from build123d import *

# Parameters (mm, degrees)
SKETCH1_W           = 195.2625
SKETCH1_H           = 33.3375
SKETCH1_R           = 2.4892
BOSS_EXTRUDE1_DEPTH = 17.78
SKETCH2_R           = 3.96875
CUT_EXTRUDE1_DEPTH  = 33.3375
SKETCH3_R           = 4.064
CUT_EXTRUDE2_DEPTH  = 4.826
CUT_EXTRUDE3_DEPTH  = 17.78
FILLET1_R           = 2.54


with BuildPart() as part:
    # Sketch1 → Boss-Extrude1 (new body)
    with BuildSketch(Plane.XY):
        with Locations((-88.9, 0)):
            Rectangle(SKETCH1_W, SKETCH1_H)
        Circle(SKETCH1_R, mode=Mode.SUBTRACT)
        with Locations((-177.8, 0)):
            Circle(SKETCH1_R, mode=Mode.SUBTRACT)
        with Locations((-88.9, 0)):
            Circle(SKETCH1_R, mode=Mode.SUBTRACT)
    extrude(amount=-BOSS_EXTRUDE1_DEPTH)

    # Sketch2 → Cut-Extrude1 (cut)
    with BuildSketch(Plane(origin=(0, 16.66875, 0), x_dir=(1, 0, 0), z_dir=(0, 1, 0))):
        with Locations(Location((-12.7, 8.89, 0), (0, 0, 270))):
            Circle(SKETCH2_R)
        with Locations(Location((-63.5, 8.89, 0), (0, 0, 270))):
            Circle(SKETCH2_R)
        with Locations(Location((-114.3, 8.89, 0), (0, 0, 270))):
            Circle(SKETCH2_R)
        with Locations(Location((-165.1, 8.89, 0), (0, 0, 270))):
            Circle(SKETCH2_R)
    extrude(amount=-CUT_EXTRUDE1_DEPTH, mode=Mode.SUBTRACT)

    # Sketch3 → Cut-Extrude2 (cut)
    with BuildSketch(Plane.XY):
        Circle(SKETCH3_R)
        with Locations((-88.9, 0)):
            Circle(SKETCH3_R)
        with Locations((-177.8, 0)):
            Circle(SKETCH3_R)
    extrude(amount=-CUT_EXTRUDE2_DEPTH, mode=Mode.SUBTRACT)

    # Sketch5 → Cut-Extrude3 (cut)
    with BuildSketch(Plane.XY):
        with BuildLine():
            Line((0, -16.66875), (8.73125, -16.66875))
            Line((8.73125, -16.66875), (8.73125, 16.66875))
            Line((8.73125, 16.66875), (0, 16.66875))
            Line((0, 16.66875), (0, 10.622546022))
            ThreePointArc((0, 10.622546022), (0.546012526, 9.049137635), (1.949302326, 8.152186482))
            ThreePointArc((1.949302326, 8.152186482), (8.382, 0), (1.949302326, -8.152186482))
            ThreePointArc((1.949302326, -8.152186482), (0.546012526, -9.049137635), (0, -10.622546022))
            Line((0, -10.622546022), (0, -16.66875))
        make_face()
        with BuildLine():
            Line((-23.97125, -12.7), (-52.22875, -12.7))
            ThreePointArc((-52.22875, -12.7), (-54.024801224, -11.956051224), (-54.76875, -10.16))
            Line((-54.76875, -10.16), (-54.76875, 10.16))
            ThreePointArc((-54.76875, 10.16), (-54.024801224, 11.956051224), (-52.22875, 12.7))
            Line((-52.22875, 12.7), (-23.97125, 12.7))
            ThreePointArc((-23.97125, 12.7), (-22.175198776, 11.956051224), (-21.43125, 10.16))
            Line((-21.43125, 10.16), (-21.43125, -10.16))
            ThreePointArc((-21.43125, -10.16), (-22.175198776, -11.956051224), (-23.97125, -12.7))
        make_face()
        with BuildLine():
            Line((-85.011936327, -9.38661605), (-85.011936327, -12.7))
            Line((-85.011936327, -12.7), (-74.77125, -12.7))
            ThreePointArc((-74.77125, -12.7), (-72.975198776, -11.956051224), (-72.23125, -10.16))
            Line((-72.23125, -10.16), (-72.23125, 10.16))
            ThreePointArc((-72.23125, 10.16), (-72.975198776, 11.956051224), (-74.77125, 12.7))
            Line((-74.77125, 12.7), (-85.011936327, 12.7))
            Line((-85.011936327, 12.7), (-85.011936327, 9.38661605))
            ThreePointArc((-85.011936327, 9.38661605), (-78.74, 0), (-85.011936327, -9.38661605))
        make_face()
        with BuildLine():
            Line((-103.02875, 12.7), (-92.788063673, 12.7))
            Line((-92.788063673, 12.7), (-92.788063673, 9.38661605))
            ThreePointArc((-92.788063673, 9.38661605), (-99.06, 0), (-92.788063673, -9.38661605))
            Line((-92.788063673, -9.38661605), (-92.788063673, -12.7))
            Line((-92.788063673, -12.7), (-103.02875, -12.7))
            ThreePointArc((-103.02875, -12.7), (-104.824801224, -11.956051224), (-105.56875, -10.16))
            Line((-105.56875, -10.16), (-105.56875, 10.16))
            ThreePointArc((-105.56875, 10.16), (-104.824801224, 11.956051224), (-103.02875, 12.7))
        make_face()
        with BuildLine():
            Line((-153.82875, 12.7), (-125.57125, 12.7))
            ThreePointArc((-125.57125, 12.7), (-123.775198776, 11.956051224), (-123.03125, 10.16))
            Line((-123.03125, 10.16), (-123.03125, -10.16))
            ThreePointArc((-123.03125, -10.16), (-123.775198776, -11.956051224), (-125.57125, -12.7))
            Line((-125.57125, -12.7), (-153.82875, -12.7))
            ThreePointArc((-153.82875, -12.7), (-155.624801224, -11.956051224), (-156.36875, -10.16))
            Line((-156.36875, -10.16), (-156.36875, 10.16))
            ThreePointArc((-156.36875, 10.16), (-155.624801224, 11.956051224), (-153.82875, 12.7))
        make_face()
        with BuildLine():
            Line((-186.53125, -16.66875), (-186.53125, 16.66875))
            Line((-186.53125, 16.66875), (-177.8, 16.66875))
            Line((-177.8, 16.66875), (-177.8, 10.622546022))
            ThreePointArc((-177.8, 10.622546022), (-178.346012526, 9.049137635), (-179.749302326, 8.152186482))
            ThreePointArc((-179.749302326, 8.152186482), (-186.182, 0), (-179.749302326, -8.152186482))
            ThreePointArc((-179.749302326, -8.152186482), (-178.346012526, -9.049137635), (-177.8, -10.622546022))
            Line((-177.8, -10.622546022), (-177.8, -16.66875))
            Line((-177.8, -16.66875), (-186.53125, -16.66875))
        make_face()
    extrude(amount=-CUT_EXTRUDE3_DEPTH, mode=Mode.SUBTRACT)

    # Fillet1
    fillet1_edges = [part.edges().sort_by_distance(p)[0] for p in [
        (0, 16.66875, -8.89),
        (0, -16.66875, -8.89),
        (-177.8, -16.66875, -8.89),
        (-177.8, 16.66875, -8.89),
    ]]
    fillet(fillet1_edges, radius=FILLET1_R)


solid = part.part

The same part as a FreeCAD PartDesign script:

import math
import FreeCAD as App
import Part
import Sketcher
from FreeCAD import Vector
Q = App.Units.Quantity


def edges_at(feature, points):
    """Names of the edges that pass closest to the given points."""
    edges = feature.Shape.Edges
    near = lambda p: min(range(len(edges)), key=lambda i: edges[i].distToShape(Part.Vertex(*p))[0])
    return sorted({f"Edge{near(p) + 1}" for p in points})

doc = App.newDocument("Part")
body = doc.addObject("PartDesign::Body", "Body")

sketch1 = body.newObject("Sketcher::SketchObject", "Sketch")
sketch1.AttachmentSupport = (doc.getObject("XY_Plane"), [""])
sketch1.MapMode = "FlatFace"
sketch1.addGeometry(Part.LineSegment(Vector(-186.5, 16.7, 0), Vector(-186.5, -16.7, 0)), False)
sketch1.addGeometry(Part.LineSegment(Vector(-186.5, -16.7, 0), Vector(8.7, -16.7, 0)), False)
sketch1.addGeometry(Part.LineSegment(Vector(8.7, -16.7, 0), Vector(8.7, 16.7, 0)), False)
sketch1.addGeometry(Part.LineSegment(Vector(8.7, 16.7, 0), Vector(-186.5, 16.7, 0)), False)
sketch1.addGeometry(Part.Circle(Vector(-177.8, 0, 0), Vector(0, 0, 1), 2.5), False)
sketch1.addGeometry(Part.Circle(Vector(-88.9, 0, 0), Vector(0, 0, 1), 2.5), False)
sketch1.addGeometry(Part.Circle(Vector(0, 0, 0), Vector(0, 0, 1), 2.5), False)
sketch1.addConstraint(Sketcher.Constraint("Coincident", 0, 2, 1, 1))
sketch1.addConstraint(Sketcher.Constraint("Coincident", 1, 2, 2, 1))
sketch1.addConstraint(Sketcher.Constraint("Coincident", 2, 2, 3, 1))
sketch1.addConstraint(Sketcher.Constraint("Coincident", 3, 2, 0, 1))
sketch1.addConstraint(Sketcher.Constraint("Vertical", 0))
sketch1.addConstraint(Sketcher.Constraint("Horizontal", 1))
sketch1.addConstraint(Sketcher.Constraint("Vertical", 2))
sketch1.addConstraint(Sketcher.Constraint("Horizontal", 3))
sketch1.addConstraint(Sketcher.Constraint("Coincident", 6, 3, -1, 1))
sketch1.addConstraint(Sketcher.Constraint("Equal", 4, 5))
sketch1.addConstraint(Sketcher.Constraint("Equal", 5, 6))
sketch1.addConstraint(Sketcher.Constraint("PointOnObject", 4, 3, -1))
sketch1.addConstraint(Sketcher.Constraint("PointOnObject", 5, 3, -1))
sketch1.addConstraint(Sketcher.Constraint("Diameter", 4, Q("0.196 in")))
sketch1.addConstraint(Sketcher.Constraint("DistanceX", 4, 3, -1, 1, Q("7 in")))
sketch1.addConstraint(Sketcher.Constraint("DistanceX", 5, 3, -1, 1, Q("3.5 in")))
sketch1.addConstraint(Sketcher.Constraint("DistanceX", 1, 1, 1, 2, Q("7.6875 in")))
sketch1.addConstraint(Sketcher.Constraint("DistanceY", 0, 2, 0, 1, Q("1.3125 in")))
sketch1.addConstraint(Sketcher.Constraint("DistanceX", 0, 2, -1, 1, Q("7.34375 in")))
sketch1.addConstraint(Sketcher.Constraint("DistanceY", 0, 2, -1, 1, Q("0.65625 in")))
pad1 = body.newObject("PartDesign::Pad", "Pad")
pad1.Profile = sketch1
pad1.Length = Q("0.7 in")
pad1.Reversed = True

sketch2 = body.newObject("Sketcher::SketchObject", "Sketch001")
sketch2.AttachmentSupport = (doc.getObject("XZ_Plane"), [""])
sketch2.MapMode = "FlatFace"
sketch2.AttachmentOffset = App.Placement(Vector(0, 0, -0.65625 * 25.4), App.Rotation())
sketch2.addGeometry(Part.Circle(Vector(-12.7, -8.9, 0), Vector(0, 0, 1), 4), False)
sketch2.addGeometry(Part.Circle(Vector(-63.5, -8.9, 0), Vector(0, 0, 1), 4), False)
sketch2.addGeometry(Part.Circle(Vector(-114.3, -8.9, 0), Vector(0, 0, 1), 4), False)
sketch2.addGeometry(Part.Circle(Vector(-165.1, -8.9, 0), Vector(0, 0, 1), 4), False)
sketch2.addConstraint(Sketcher.Constraint("Equal", 0, 1))
sketch2.addConstraint(Sketcher.Constraint("Equal", 1, 2))
sketch2.addConstraint(Sketcher.Constraint("Equal", 2, 3))
sketch2.addConstraint(Sketcher.Constraint("Horizontal", 0, 3, 1, 3))
sketch2.addConstraint(Sketcher.Constraint("Horizontal", 1, 3, 2, 3))
sketch2.addConstraint(Sketcher.Constraint("Horizontal", 2, 3, 3, 3))
sketch2.addConstraint(Sketcher.Constraint("Diameter", 0, Q("0.3125 in")))
sketch2.addConstraint(Sketcher.Constraint("DistanceX", 1, 3, 0, 3, Q("2 in")))
sketch2.addConstraint(Sketcher.Constraint("DistanceX", 2, 3, 1, 3, Q("2 in")))
sketch2.addConstraint(Sketcher.Constraint("DistanceX", 3, 3, 2, 3, Q("2 in")))
sketch2.addConstraint(Sketcher.Constraint("DistanceX", 0, 3, -1, 1, Q("0.5 in")))
sketch2.addConstraint(Sketcher.Constraint("DistanceY", 0, 3, -1, 1, Q("0.35 in")))
pocket1 = body.newObject("PartDesign::Pocket", "Pocket")
pocket1.Profile = sketch2
pocket1.Length = Q("1.3125 in")
pocket1.Reversed = True

sketch3 = body.newObject("Sketcher::SketchObject", "Sketch002")
sketch3.AttachmentSupport = (doc.getObject("XY_Plane"), [""])
sketch3.MapMode = "FlatFace"
sketch3.addGeometry(Part.Circle(Vector(0, 0, 0), Vector(0, 0, 1), 4.1), False)
sketch3.addGeometry(Part.Circle(Vector(-88.9, 0, 0), Vector(0, 0, 1), 4.1), False)
sketch3.addGeometry(Part.Circle(Vector(-177.8, 0, 0), Vector(0, 0, 1), 4.1), False)
sketch3.addConstraint(Sketcher.Constraint("Coincident", 0, 3, -1, 1))
sketch3.addConstraint(Sketcher.Constraint("Equal", 0, 1))
sketch3.addConstraint(Sketcher.Constraint("Equal", 1, 2))
sketch3.addConstraint(Sketcher.Constraint("PointOnObject", 1, 3, -1))
sketch3.addConstraint(Sketcher.Constraint("PointOnObject", 2, 3, -1))
sketch3.addConstraint(Sketcher.Constraint("Diameter", 0, Q("0.32 in")))
sketch3.addConstraint(Sketcher.Constraint("DistanceX", 2, 3, -1, 1, Q("7 in")))
sketch3.addConstraint(Sketcher.Constraint("DistanceX", 1, 3, -1, 1, Q("3.5 in")))
pocket2 = body.newObject("PartDesign::Pocket", "Pocket001")
pocket2.Profile = sketch3
pocket2.Length = Q("0.19 in")

sketch4 = body.newObject("Sketcher::SketchObject", "Sketch003")
sketch4.AttachmentSupport = (doc.getObject("XY_Plane"), [""])
sketch4.MapMode = "FlatFace"
sketch4.addGeometry(Part.LineSegment(Vector(0, -16.7, 0), Vector(8.7, -16.7, 0)), False)
sketch4.addGeometry(Part.LineSegment(Vector(8.7, -16.7, 0), Vector(8.7, 16.7, 0)), False)
sketch4.addGeometry(Part.LineSegment(Vector(8.7, 16.7, 0), Vector(0, 16.7, 0)), False)
sketch4.addGeometry(Part.LineSegment(Vector(0, 16.7, 0), Vector(0, 10.6, 0)), False)
sketch4.addGeometry(Part.ArcOfCircle(Part.Circle(Vector(2.5, 10.6, 0), Vector(0, 0, 1), 2.5), math.radians(-180), math.radians(-103)), False)
sketch4.addGeometry(Part.ArcOfCircle(Part.Circle(Vector(0, 0, 0), Vector(0, 0, 1), 8.4), math.radians(-77), math.radians(77)), False)
sketch4.addGeometry(Part.ArcOfCircle(Part.Circle(Vector(2.5, -10.6, 0), Vector(0, 0, 1), 2.5), math.radians(103), math.radians(180)), False)
sketch4.addGeometry(Part.LineSegment(Vector(0, -10.6, 0), Vector(0, -16.7, 0)), False)
sketch4.addGeometry(Part.LineSegment(Vector(-52.2, -12.7, 0), Vector(-24, -12.7, 0)), False)
sketch4.addGeometry(Part.ArcOfCircle(Part.Circle(Vector(-24, -10.2, 0), Vector(0, 0, 1), 2.5), math.radians(-90), math.radians(0)), False)
sketch4.addGeometry(Part.LineSegment(Vector(-21.4, -10.2, 0), Vector(-21.4, 10.2, 0)), False)
sketch4.addGeometry(Part.ArcOfCircle(Part.Circle(Vector(-24, 10.2, 0), Vector(0, 0, 1), 2.5), math.radians(0), math.radians(90)), False)
sketch4.addGeometry(Part.LineSegment(Vector(-24, 12.7, 0), Vector(-52.2, 12.7, 0)), False)
sketch4.addGeometry(Part.ArcOfCircle(Part.Circle(Vector(-52.2, 10.2, 0), Vector(0, 0, 1), 2.5), math.radians(90), math.radians(180)), False)
sketch4.addGeometry(Part.LineSegment(Vector(-54.8, 10.2, 0), Vector(-54.8, -10.2, 0)), False)
sketch4.addGeometry(Part.ArcOfCircle(Part.Circle(Vector(-52.2, -10.2, 0), Vector(0, 0, 1), 2.5), math.radians(-180), math.radians(-90)), False)
sketch4.addGeometry(Part.LineSegment(Vector(-85, -9.4, 0), Vector(-85, -12.7, 0)), False)
sketch4.addGeometry(Part.LineSegment(Vector(-85, -12.7, 0), Vector(-74.8, -12.7, 0)), False)
sketch4.addGeometry(Part.ArcOfCircle(Part.Circle(Vector(-74.8, -10.2, 0), Vector(0, 0, 1), 2.5), math.radians(-90), math.radians(0)), False)
sketch4.addGeometry(Part.LineSegment(Vector(-72.2, -10.2, 0), Vector(-72.2, 10.2, 0)), False)
sketch4.addGeometry(Part.ArcOfCircle(Part.Circle(Vector(-74.8, 10.2, 0), Vector(0, 0, 1), 2.5), math.radians(0), math.radians(90)), False)
sketch4.addGeometry(Part.LineSegment(Vector(-74.8, 12.7, 0), Vector(-85, 12.7, 0)), False)
sketch4.addGeometry(Part.LineSegment(Vector(-85, 12.7, 0), Vector(-85, 9.4, 0)), False)
sketch4.addGeometry(Part.ArcOfCircle(Part.Circle(Vector(-88.9, 0, 0), Vector(0, 0, 1), 10.2), math.radians(-67), math.radians(67)), False)
sketch4.addGeometry(Part.LineSegment(Vector(-92.8, 12.7, 0), Vector(-103, 12.7, 0)), False)
sketch4.addGeometry(Part.ArcOfCircle(Part.Circle(Vector(-103, 10.2, 0), Vector(0, 0, 1), 2.5), math.radians(90), math.radians(180)), False)
sketch4.addGeometry(Part.LineSegment(Vector(-105.6, 10.2, 0), Vector(-105.6, -10.2, 0)), False)
sketch4.addGeometry(Part.ArcOfCircle(Part.Circle(Vector(-103, -10.2, 0), Vector(0, 0, 1), 2.5), math.radians(-180), math.radians(-90)), False)
sketch4.addGeometry(Part.LineSegment(Vector(-103, -12.7, 0), Vector(-92.8, -12.7, 0)), False)
sketch4.addGeometry(Part.LineSegment(Vector(-92.8, -12.7, 0), Vector(-92.8, -9.4, 0)), False)
sketch4.addGeometry(Part.ArcOfCircle(Part.Circle(Vector(-88.9, 0, 0), Vector(0, 0, 1), 10.2), math.radians(113), math.radians(247)), False)
sketch4.addGeometry(Part.LineSegment(Vector(-92.8, 9.4, 0), Vector(-92.8, 12.7, 0)), False)
sketch4.addGeometry(Part.LineSegment(Vector(-125.6, 12.7, 0), Vector(-153.8, 12.7, 0)), False)
sketch4.addGeometry(Part.ArcOfCircle(Part.Circle(Vector(-153.8, 10.2, 0), Vector(0, 0, 1), 2.5), math.radians(90), math.radians(180)), False)
sketch4.addGeometry(Part.LineSegment(Vector(-156.4, 10.2, 0), Vector(-156.4, -10.2, 0)), False)
sketch4.addGeometry(Part.ArcOfCircle(Part.Circle(Vector(-153.8, -10.2, 0), Vector(0, 0, 1), 2.5), math.radians(-180), math.radians(-90)), False)
sketch4.addGeometry(Part.LineSegment(Vector(-153.8, -12.7, 0), Vector(-125.6, -12.7, 0)), False)
sketch4.addGeometry(Part.ArcOfCircle(Part.Circle(Vector(-125.6, -10.2, 0), Vector(0, 0, 1), 2.5), math.radians(-90), math.radians(0)), False)
sketch4.addGeometry(Part.LineSegment(Vector(-123, -10.2, 0), Vector(-123, 10.2, 0)), False)
sketch4.addGeometry(Part.ArcOfCircle(Part.Circle(Vector(-125.6, 10.2, 0), Vector(0, 0, 1), 2.5), math.radians(0), math.radians(90)), False)
sketch4.addGeometry(Part.LineSegment(Vector(-186.5, 16.7, 0), Vector(-186.5, -16.7, 0)), False)
sketch4.addGeometry(Part.LineSegment(Vector(-186.5, -16.7, 0), Vector(-177.8, -16.7, 0)), False)
sketch4.addGeometry(Part.LineSegment(Vector(-177.8, -16.7, 0), Vector(-177.8, -10.6, 0)), False)
sketch4.addGeometry(Part.ArcOfCircle(Part.Circle(Vector(-180.3, -10.6, 0), Vector(0, 0, 1), 2.5), math.radians(0), math.radians(77)), False)
sketch4.addGeometry(Part.ArcOfCircle(Part.Circle(Vector(-177.8, 0, 0), Vector(0, 0, 1), 8.4), math.radians(103), math.radians(257)), False)
sketch4.addGeometry(Part.ArcOfCircle(Part.Circle(Vector(-180.3, 10.6, 0), Vector(0, 0, 1), 2.5), math.radians(-77), math.radians(0)), False)
sketch4.addGeometry(Part.LineSegment(Vector(-177.8, 10.6, 0), Vector(-177.8, 16.7, 0)), False)
sketch4.addGeometry(Part.LineSegment(Vector(-177.8, 16.7, 0), Vector(-186.5, 16.7, 0)), False)
sketch4.addConstraint(Sketcher.Constraint("Coincident", 0, 2, 1, 1))
sketch4.addConstraint(Sketcher.Constraint("Coincident", 1, 2, 2, 1))
sketch4.addConstraint(Sketcher.Constraint("Coincident", 2, 2, 3, 1))
sketch4.addConstraint(Sketcher.Constraint("Tangent", 3, 2, 4, 1))
sketch4.addConstraint(Sketcher.Constraint("Tangent", 4, 2, 5, 2))
sketch4.addConstraint(Sketcher.Constraint("Tangent", 5, 1, 6, 1))
sketch4.addConstraint(Sketcher.Constraint("Tangent", 6, 2, 7, 1))
sketch4.addConstraint(Sketcher.Constraint("Coincident", 7, 2, 0, 1))
sketch4.addConstraint(Sketcher.Constraint("Tangent", 8, 2, 9, 1))
sketch4.addConstraint(Sketcher.Constraint("Tangent", 9, 2, 10, 1))
sketch4.addConstraint(Sketcher.Constraint("Tangent", 10, 2, 11, 1))
sketch4.addConstraint(Sketcher.Constraint("Tangent", 11, 2, 12, 1))
sketch4.addConstraint(Sketcher.Constraint("Tangent", 12, 2, 13, 1))
sketch4.addConstraint(Sketcher.Constraint("Tangent", 13, 2, 14, 1))
sketch4.addConstraint(Sketcher.Constraint("Tangent", 14, 2, 15, 1))
sketch4.addConstraint(Sketcher.Constraint("Tangent", 15, 2, 8, 1))
sketch4.addConstraint(Sketcher.Constraint("Coincident", 16, 2, 17, 1))
sketch4.addConstraint(Sketcher.Constraint("Tangent", 17, 2, 18, 1))
sketch4.addConstraint(Sketcher.Constraint("Tangent", 18, 2, 19, 1))
sketch4.addConstraint(Sketcher.Constraint("Tangent", 19, 2, 20, 1))
sketch4.addConstraint(Sketcher.Constraint("Tangent", 20, 2, 21, 1))
sketch4.addConstraint(Sketcher.Constraint("Coincident", 21, 2, 22, 1))
sketch4.addConstraint(Sketcher.Constraint("Coincident", 22, 2, 23, 2))
sketch4.addConstraint(Sketcher.Constraint("Coincident", 23, 1, 16, 1))
sketch4.addConstraint(Sketcher.Constraint("Tangent", 24, 2, 25, 1))
sketch4.addConstraint(Sketcher.Constraint("Tangent", 25, 2, 26, 1))
sketch4.addConstraint(Sketcher.Constraint("Tangent", 26, 2, 27, 1))
sketch4.addConstraint(Sketcher.Constraint("Tangent", 27, 2, 28, 1))
sketch4.addConstraint(Sketcher.Constraint("Coincident", 28, 2, 29, 1))
sketch4.addConstraint(Sketcher.Constraint("Coincident", 29, 2, 30, 2))
sketch4.addConstraint(Sketcher.Constraint("Coincident", 30, 1, 31, 1))
sketch4.addConstraint(Sketcher.Constraint("Coincident", 31, 2, 24, 1))
sketch4.addConstraint(Sketcher.Constraint("Tangent", 32, 2, 33, 1))
sketch4.addConstraint(Sketcher.Constraint("Tangent", 33, 2, 34, 1))
sketch4.addConstraint(Sketcher.Constraint("Tangent", 34, 2, 35, 1))
sketch4.addConstraint(Sketcher.Constraint("Tangent", 35, 2, 36, 1))
sketch4.addConstraint(Sketcher.Constraint("Tangent", 36, 2, 37, 1))
sketch4.addConstraint(Sketcher.Constraint("Tangent", 37, 2, 38, 1))
sketch4.addConstraint(Sketcher.Constraint("Tangent", 38, 2, 39, 1))
sketch4.addConstraint(Sketcher.Constraint("Tangent", 39, 2, 32, 1))
sketch4.addConstraint(Sketcher.Constraint("Coincident", 40, 2, 41, 1))
sketch4.addConstraint(Sketcher.Constraint("Coincident", 41, 2, 42, 1))
sketch4.addConstraint(Sketcher.Constraint("Tangent", 42, 2, 43, 1))
sketch4.addConstraint(Sketcher.Constraint("Tangent", 43, 2, 44, 2))
sketch4.addConstraint(Sketcher.Constraint("Tangent", 44, 1, 45, 1))
sketch4.addConstraint(Sketcher.Constraint("Tangent", 45, 2, 46, 1))
sketch4.addConstraint(Sketcher.Constraint("Coincident", 46, 2, 47, 1))
sketch4.addConstraint(Sketcher.Constraint("Coincident", 47, 2, 40, 1))
sketch4.addConstraint(Sketcher.Constraint("Horizontal", 0))
sketch4.addConstraint(Sketcher.Constraint("Vertical", 1))
sketch4.addConstraint(Sketcher.Constraint("Horizontal", 2))
sketch4.addConstraint(Sketcher.Constraint("Vertical", 3))
sketch4.addConstraint(Sketcher.Constraint("Vertical", 7))
sketch4.addConstraint(Sketcher.Constraint("Horizontal", 8))
sketch4.addConstraint(Sketcher.Constraint("Vertical", 10))
sketch4.addConstraint(Sketcher.Constraint("Horizontal", 12))
sketch4.addConstraint(Sketcher.Constraint("Vertical", 14))
sketch4.addConstraint(Sketcher.Constraint("Vertical", 16))
sketch4.addConstraint(Sketcher.Constraint("Horizontal", 17))
sketch4.addConstraint(Sketcher.Constraint("Vertical", 19))
sketch4.addConstraint(Sketcher.Constraint("Horizontal", 21))
sketch4.addConstraint(Sketcher.Constraint("Vertical", 22))
sketch4.addConstraint(Sketcher.Constraint("Horizontal", 24))
sketch4.addConstraint(Sketcher.Constraint("Vertical", 26))
sketch4.addConstraint(Sketcher.Constraint("Horizontal", 28))
sketch4.addConstraint(Sketcher.Constraint("Vertical", 29))
sketch4.addConstraint(Sketcher.Constraint("Vertical", 31))
sketch4.addConstraint(Sketcher.Constraint("Horizontal", 32))
sketch4.addConstraint(Sketcher.Constraint("Vertical", 34))
sketch4.addConstraint(Sketcher.Constraint("Horizontal", 36))
sketch4.addConstraint(Sketcher.Constraint("Vertical", 38))
sketch4.addConstraint(Sketcher.Constraint("Vertical", 40))
sketch4.addConstraint(Sketcher.Constraint("Horizontal", 41))
sketch4.addConstraint(Sketcher.Constraint("Vertical", 42))
sketch4.addConstraint(Sketcher.Constraint("Vertical", 46))
sketch4.addConstraint(Sketcher.Constraint("Horizontal", 47))
sketch4.addConstraint(Sketcher.Constraint("Coincident", 5, 3, -1, 1))
sketch4.addConstraint(Sketcher.Constraint("Coincident", 30, 3, 23, 3))
sketch4.addConstraint(Sketcher.Constraint("Equal", 4, 6))
sketch4.addConstraint(Sketcher.Constraint("Equal", 6, 9))
sketch4.addConstraint(Sketcher.Constraint("Equal", 9, 11))
sketch4.addConstraint(Sketcher.Constraint("Equal", 11, 13))
sketch4.addConstraint(Sketcher.Constraint("Equal", 13, 15))
sketch4.addConstraint(Sketcher.Constraint("Equal", 15, 18))
sketch4.addConstraint(Sketcher.Constraint("Equal", 18, 20))
sketch4.addConstraint(Sketcher.Constraint("Equal", 20, 25))
sketch4.addConstraint(Sketcher.Constraint("Equal", 25, 27))
sketch4.addConstraint(Sketcher.Constraint("Equal", 23, 30))
sketch4.addConstraint(Sketcher.Constraint("Equal", 27, 33))
sketch4.addConstraint(Sketcher.Constraint("Equal", 33, 35))
sketch4.addConstraint(Sketcher.Constraint("Equal", 35, 37))
sketch4.addConstraint(Sketcher.Constraint("Equal", 37, 39))
sketch4.addConstraint(Sketcher.Constraint("Equal", 39, 43))
sketch4.addConstraint(Sketcher.Constraint("Equal", 5, 44))
sketch4.addConstraint(Sketcher.Constraint("Equal", 43, 45))
sketch4.addConstraint(Sketcher.Constraint("Symmetric", 3, 2, 6, 2, -1, 1))
sketch4.addConstraint(Sketcher.Constraint("Symmetric", 43, 3, 45, 3, -1))
sketch4.addConstraint(Sketcher.Constraint("Symmetric", 16, 2, 21, 2, -1))
sketch4.addConstraint(Sketcher.Constraint("Symmetric", 29, 2, 30, 1, -1))
sketch4.addConstraint(Sketcher.Constraint("Horizontal", 15, 3, 18, 3))
sketch4.addConstraint(Sketcher.Constraint("Horizontal", 13, 3, 20, 3))
sketch4.addConstraint(Sketcher.Constraint("Horizontal", 20, 3, 25, 3))
sketch4.addConstraint(Sketcher.Constraint("Horizontal", 18, 3, 27, 3))
sketch4.addConstraint(Sketcher.Constraint("Horizontal", 25, 3, 33, 3))
sketch4.addConstraint(Sketcher.Constraint("Horizontal", 27, 3, 35, 3))
sketch4.addConstraint(Sketcher.Constraint("Horizontal", 6, 3, 43, 3))
sketch4.addConstraint(Sketcher.Constraint("Horizontal", 23, 1, 29, 2))
sketch4.addConstraint(Sketcher.Constraint("Horizontal", 7, 2, 40, 2))
sketch4.addConstraint(Sketcher.Constraint("Horizontal", 2, 2, 46, 2))
sketch4.addConstraint(Sketcher.Constraint("Equal", 21, 24))
sketch4.addConstraint(Sketcher.Constraint("Equal", 12, 32))
sketch4.addConstraint(Sketcher.Constraint("Equal", 2, 41))
sketch4.addConstraint(Sketcher.Constraint("Equal", 3, 7))
sketch4.addConstraint(Sketcher.Constraint("Radius", 4, Q("0.1 in")))
sketch4.addConstraint(Sketcher.Constraint("Radius", 23, Q("0.4 in")))
sketch4.addConstraint(Sketcher.Constraint("Radius", 5, Q("0.33 in")))
sketch4.addConstraint(Sketcher.Constraint("DistanceY", 10, 1, 10, 2, Q("0.8 in")))
sketch4.addConstraint(Sketcher.Constraint("DistanceX", 44, 3, -1, 1, Q("7 in")))
sketch4.addConstraint(Sketcher.Constraint("DistanceX", 23, 3, -1, 1, Q("3.5 in")))
sketch4.addConstraint(Sketcher.Constraint("DistanceX", 0, 1, 0, 2, Q("0.34375 in")))
sketch4.addConstraint(Sketcher.Constraint("DistanceY", 1, 1, 1, 2, Q("1.3125 in")))
sketch4.addConstraint(Sketcher.Constraint("DistanceX", 8, 1, 8, 2, Q("1.1125 in")))
sketch4.addConstraint(Sketcher.Constraint("DistanceX", 9, 2, -1, 1, Q("0.84375 in")))
sketch4.addConstraint(Sketcher.Constraint("DistanceX", 18, 2, -1, 1, Q("2.84375 in")))
sketch4.addConstraint(Sketcher.Constraint("DistanceX", 33, 2, -1, 1, Q("6.15625 in")))
sketch4.addConstraint(Sketcher.Constraint("DistanceX", 17, 1, 17, 2, Q("10.240686 mm")))
pocket3 = body.newObject("PartDesign::Pocket", "Pocket002")
pocket3.Profile = sketch4
pocket3.Length = Q("0.7 in")
doc.recompute()

fillet = body.newObject("PartDesign::Fillet", "Fillet")
fillet.Base = (pocket3, edges_at(pocket3, [
    (0, 16.669, -8.89),
    (0, -16.669, -8.89),
    (-177.8, -16.669, -8.89),
    (-177.8, 16.669, -8.89),
]))
fillet.Radius = Q("0.1 in")

doc.recompute()
